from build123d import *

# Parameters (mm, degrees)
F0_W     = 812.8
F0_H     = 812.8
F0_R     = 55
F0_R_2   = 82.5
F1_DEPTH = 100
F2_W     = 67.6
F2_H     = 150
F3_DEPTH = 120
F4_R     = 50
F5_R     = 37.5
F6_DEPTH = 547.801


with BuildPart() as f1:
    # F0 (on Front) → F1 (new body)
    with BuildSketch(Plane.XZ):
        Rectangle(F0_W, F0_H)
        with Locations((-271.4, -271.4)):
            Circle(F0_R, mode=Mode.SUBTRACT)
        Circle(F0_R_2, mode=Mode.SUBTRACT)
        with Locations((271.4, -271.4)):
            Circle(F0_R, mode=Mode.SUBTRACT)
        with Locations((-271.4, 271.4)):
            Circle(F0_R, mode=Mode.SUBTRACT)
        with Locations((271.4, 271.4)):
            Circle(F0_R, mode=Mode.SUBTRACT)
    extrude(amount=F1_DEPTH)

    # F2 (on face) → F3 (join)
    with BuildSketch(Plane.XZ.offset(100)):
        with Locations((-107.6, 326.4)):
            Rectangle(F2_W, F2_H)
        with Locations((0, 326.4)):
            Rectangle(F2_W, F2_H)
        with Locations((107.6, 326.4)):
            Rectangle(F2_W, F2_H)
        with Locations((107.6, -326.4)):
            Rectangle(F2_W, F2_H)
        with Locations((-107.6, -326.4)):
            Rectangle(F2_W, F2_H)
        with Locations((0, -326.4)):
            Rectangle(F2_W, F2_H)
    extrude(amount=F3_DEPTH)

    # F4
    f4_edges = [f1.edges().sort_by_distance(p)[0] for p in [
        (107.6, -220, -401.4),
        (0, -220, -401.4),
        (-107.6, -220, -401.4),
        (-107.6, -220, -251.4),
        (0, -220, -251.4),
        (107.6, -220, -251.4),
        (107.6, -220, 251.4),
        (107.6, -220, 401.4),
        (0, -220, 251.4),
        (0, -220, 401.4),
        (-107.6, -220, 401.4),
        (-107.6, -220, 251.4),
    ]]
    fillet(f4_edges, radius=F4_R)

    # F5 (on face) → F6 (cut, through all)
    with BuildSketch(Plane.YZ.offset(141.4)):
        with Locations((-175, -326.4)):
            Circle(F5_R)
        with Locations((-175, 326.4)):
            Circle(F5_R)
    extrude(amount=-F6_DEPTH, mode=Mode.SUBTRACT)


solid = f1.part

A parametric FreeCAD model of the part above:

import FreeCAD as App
import Part
import Sketcher

V = App.Vector


def edges_at(feature, points):
    """Names of the edges that pass closest to the given points."""
    edges = feature.Shape.Edges
    near = lambda p: min(range(len(edges)), key=lambda i: edges[i].distToShape(Part.Vertex(*p))[0])
    return sorted({f"Edge{near(p) + 1}" for p in points})

doc = App.newDocument("Part")
body = doc.addObject("PartDesign::Body", "Body")

sketch1 = body.newObject("Sketcher::SketchObject", "Sketch")
sketch1.AttachmentSupport = (doc.getObject("XZ_Plane"), [""])
sketch1.MapMode = "FlatFace"
sketch1.addGeometry(Part.LineSegment(V(-406, 406, 0), V(-406, -406, 0)), False)
sketch1.addGeometry(Part.LineSegment(V(-406, -406, 0), V(406, -406, 0)), False)
sketch1.addGeometry(Part.LineSegment(V(406, -406, 0), V(406, 406, 0)), False)
sketch1.addGeometry(Part.LineSegment(V(406, 406, 0), V(-406, 406, 0)), False)
sketch1.addGeometry(Part.Circle(V(-271, -271, 0), V(0, 0, 1), 55), False)
sketch1.addGeometry(Part.Circle(V(271, -271, 0), V(0, 0, 1), 55), False)
sketch1.addGeometry(Part.Circle(V(-271, 271, 0), V(0, 0, 1), 55), False)
sketch1.addGeometry(Part.Circle(V(0, 0, 0), V(0, 0, 1), 82), False)
sketch1.addGeometry(Part.Circle(V(271, 271, 0), V(0, 0, 1), 55), False)
sketch1.addConstraint(Sketcher.Constraint("Coincident", 0, 2, 1, 1))
sketch1.addConstraint(Sketcher.Constraint("Coincident", 1, 2, 2, 1))
sketch1.addConstraint(Sketcher.Constraint("Coincident", 2, 2, 3, 1))
sketch1.addConstraint(Sketcher.Constraint("Coincident", 3, 2, 0, 1))
sketch1.addConstraint(Sketcher.Constraint("Vertical", 0))
sketch1.addConstraint(Sketcher.Constraint("Horizontal", 1))
sketch1.addConstraint(Sketcher.Constraint("Vertical", 2))
sketch1.addConstraint(Sketcher.Constraint("Horizontal", 3))
sketch1.addConstraint(Sketcher.Constraint("Coincident", 7, 3, -1, 1))
sketch1.addConstraint(Sketcher.Constraint("Equal", 4, 5))
sketch1.addConstraint(Sketcher.Constraint("Equal", 5, 6))
sketch1.addConstraint(Sketcher.Constraint("Equal", 6, 8))
sketch1.addConstraint(Sketcher.Constraint("Symmetric", 5, 3, 6, 3, -1, 1))
sketch1.addConstraint(Sketcher.Constraint("Symmetric", 4, 3, 8, 3, -1, 1))
sketch1.addConstraint(Sketcher.Constraint("Symmetric", 0, 2, 2, 2, -1, 1))
sketch1.addConstraint(Sketcher.Constraint("Symmetric", 4, 3, 5, 3, -2))
sketch1.addConstraint(Sketcher.Constraint("Equal", 3, 0))
sketch1.addConstraint(Sketcher.Constraint("Diameter", 4, 110.0))
sketch1.addConstraint(Sketcher.Constraint("Diameter", 7, 165.0))
sketch1.addConstraint(Sketcher.Constraint("DistanceX", 1, 1, 1, 2, 812.8))
sketch1.addConstraint(Sketcher.Constraint("DistanceX", 0, 2, 4, 3, 135.0))
sketch1.addConstraint(Sketcher.Constraint("DistanceY", 0, 2, 4, 3, 135.0))
pad1 = body.newObject("PartDesign::Pad", "Pad")
pad1.Profile = sketch1
pad1.Length = 100

sketch2 = body.newObject("Sketcher::SketchObject", "Sketch001")
sketch2.AttachmentSupport = (doc.getObject("XZ_Plane"), [""])
sketch2.MapMode = "FlatFace"
sketch2.AttachmentOffset = App.Placement(V(0, 0, 100), App.Rotation())
sketch2.addGeometry(Part.LineSegment(V(-141, 401, 0), V(-141, 251, 0)), False)
sketch2.addGeometry(Part.LineSegment(V(-141, 251, 0), V(-74, 251, 0)), False)
sketch2.addGeometry(Part.LineSegment(V(-74, 251, 0), V(-74, 401, 0)), False)
sketch2.addGeometry(Part.LineSegment(V(-74, 401, 0), V(-141, 401, 0)), False)
sketch2.addGeometry(Part.LineSegment(V(-34, 401, 0), V(-34, 251, 0)), False)
sketch2.addGeometry(Part.LineSegment(V(-34, 251, 0), V(34, 251, 0)), False)
sketch2.addGeometry(Part.LineSegment(V(34, 251, 0), V(34, 401, 0)), False)
sketch2.addGeometry(Part.LineSegment(V(34, 401, 0), V(-34, 401, 0)), False)
sketch2.addGeometry(Part.LineSegment(V(74, 401, 0), V(74, 251, 0)), False)
sketch2.addGeometry(Part.LineSegment(V(74, 251, 0), V(141, 251, 0)), False)
sketch2.addGeometry(Part.LineSegment(V(141, 251, 0), V(141, 401, 0)), False)
sketch2.addGeometry(Part.LineSegment(V(141, 401, 0), V(74, 401, 0)), False)
sketch2.addGeometry(Part.LineSegment(V(74, -251, 0), V(74, -401, 0)), False)
sketch2.addGeometry(Part.LineSegment(V(74, -401, 0), V(141, -401, 0)), False)
sketch2.addGeometry(Part.LineSegment(V(141, -401, 0), V(141, -251, 0)), False)
sketch2.addGeometry(Part.LineSegment(V(141, -251, 0), V(74, -251, 0)), False)
sketch2.addGeometry(Part.LineSegment(V(-141, -251, 0), V(-141, -401, 0)), False)
sketch2.addGeometry(Part.LineSegment(V(-141, -401, 0), V(-74, -401, 0)), False)
sketch2.addGeometry(Part.LineSegment(V(-74, -401, 0), V(-74, -251, 0)), False)
sketch2.addGeometry(Part.LineSegment(V(-74, -251, 0), V(-141, -251, 0)), False)
sketch2.addGeometry(Part.LineSegment(V(-34, -251, 0), V(-34, -401, 0)), False)
sketch2.addGeometry(Part.LineSegment(V(-34, -401, 0), V(34, -401, 0)), False)
sketch2.addGeometry(Part.LineSegment(V(34, -401, 0), V(34, -251, 0)), False)
sketch2.addGeometry(Part.LineSegment(V(34, -251, 0), V(-34, -251, 0)), False)
sketch2.addConstraint(Sketcher.Constraint("Coincident", 0, 2, 1, 1))
sketch2.addConstraint(Sketcher.Constraint("Coincident", 1, 2, 2, 1))
sketch2.addConstraint(Sketcher.Constraint("Coincident", 2, 2, 3, 1))
sketch2.addConstraint(Sketcher.Constraint("Coincident", 3, 2, 0, 1))
sketch2.addConstraint(Sketcher.Constraint("Coincident", 4, 2, 5, 1))
sketch2.addConstraint(Sketcher.Constraint("Coincident", 5, 2, 6, 1))
sketch2.addConstraint(Sketcher.Constraint("Coincident", 6, 2, 7, 1))
sketch2.addConstraint(Sketcher.Constraint("Coincident", 7, 2, 4, 1))
sketch2.addConstraint(Sketcher.Constraint("Coincident", 8, 2, 9, 1))
sketch2.addConstraint(Sketcher.Constraint("Coincident", 9, 2, 10, 1))
sketch2.addConstraint(Sketcher.Constraint("Coincident", 10, 2, 11, 1))
sketch2.addConstraint(Sketcher.Constraint("Coincident", 11, 2, 8, 1))
sketch2.addConstraint(Sketcher.Constraint("Coincident", 12, 2, 13, 1))
sketch2.addConstraint(Sketcher.Constraint("Coincident", 13, 2, 14, 1))
sketch2.addConstraint(Sketcher.Constraint("Coincident", 14, 2, 15, 1))
sketch2.addConstraint(Sketcher.Constraint("Coincident", 15, 2, 12, 1))
sketch2.addConstraint(Sketcher.Constraint("Coincident", 16, 2, 17, 1))
sketch2.addConstraint(Sketcher.Constraint("Coincident", 17, 2, 18, 1))
sketch2.addConstraint(Sketcher.Constraint("Coincident", 18, 2, 19, 1))
sketch2.addConstraint(Sketcher.Constraint("Coincident", 19, 2, 16, 1))
sketch2.addConstraint(Sketcher.Constraint("Coincident", 20, 2, 21, 1))
sketch2.addConstraint(Sketcher.Constraint("Coincident", 21, 2, 22, 1))
sketch2.addConstraint(Sketcher.Constraint("Coincident", 22, 2, 23, 1))
sketch2.addConstraint(Sketcher.Constraint("Coincident", 23, 2, 20, 1))
sketch2.addConstraint(Sketcher.Constraint("Vertical", 0))
sketch2.addConstraint(Sketcher.Constraint("Horizontal", 1))
sketch2.addConstraint(Sketcher.Constraint("Vertical", 2))
sketch2.addConstraint(Sketcher.Constraint("Horizontal", 3))
sketch2.addConstraint(Sketcher.Constraint("Vertical", 4))
sketch2.addConstraint(Sketcher.Constraint("Horizontal", 5))
sketch2.addConstraint(Sketcher.Constraint("Vertical", 6))
sketch2.addConstraint(Sketcher.Constraint("Horizontal", 7))
sketch2.addConstraint(Sketcher.Constraint("Vertical", 8))
sketch2.addConstraint(Sketcher.Constraint("Horizontal", 9))
sketch2.addConstraint(Sketcher.Constraint("Vertical", 10))
sketch2.addConstraint(Sketcher.Constraint("Horizontal", 11))
sketch2.addConstraint(Sketcher.Constraint("Vertical", 12))
sketch2.addConstraint(Sketcher.Constraint("Horizontal", 13))
sketch2.addConstraint(Sketcher.Constraint("Vertical", 14))
sketch2.addConstraint(Sketcher.Constraint("Horizontal", 15))
sketch2.addConstraint(Sketcher.Constraint("Vertical", 16))
sketch2.addConstraint(Sketcher.Constraint("Horizontal", 17))
sketch2.addConstraint(Sketcher.Constraint("Vertical", 18))
sketch2.addConstraint(Sketcher.Constraint("Horizontal", 19))
sketch2.addConstraint(Sketcher.Constraint("Vertical", 20))
sketch2.addConstraint(Sketcher.Constraint("Horizontal", 21))
sketch2.addConstraint(Sketcher.Constraint("Vertical", 22))
sketch2.addConstraint(Sketcher.Constraint("Horizontal", 23))
sketch2.addConstraint(Sketcher.Constraint("Symmetric", 2, 2, 12, 2, -1, 1))
sketch2.addConstraint(Sketcher.Constraint("Symmetric", 0, 2, 14, 2, -1, 1))
sketch2.addConstraint(Sketcher.Constraint("Symmetric", 10, 2, 16, 2, -1, 1))
sketch2.addConstraint(Sketcher.Constraint("Symmetric", 8, 2, 18, 2, -1, 1))
sketch2.addConstraint(Sketcher.Constraint("Symmetric", 6, 2, 20, 2, -1, 1))
sketch2.addConstraint(Sketcher.Constraint("Symmetric", 4, 2, 22, 2, -1, 1))
sketch2.addConstraint(Sketcher.Constraint("Symmetric", 1, 2, 8, 2, -2))
sketch2.addConstraint(Sketcher.Constraint("Symmetric", 3, 2, 10, 2, -2))
sketch2.addConstraint(Sketcher.Constraint("Horizontal", 1, 2, 4, 2))
sketch2.addConstraint(Sketcher.Constraint("Horizontal", 3, 2, 6, 2))
sketch2.addConstraint(Sketcher.Constraint("Vertical", 7, 2, 20, 2))
sketch2.addConstraint(Sketcher.Constraint("Equal", 3, 5))
sketch2.addConstraint(Sketcher.Constraint("DistanceY", 0, 2, 0, 1, 150.0))
sketch2.addConstraint(Sketcher.Constraint("DistanceX", 1, 1, 1, 2, 67.6))
sketch2.addConstraint(Sketcher.Constraint("DistanceX", 1, 2, 4, 2, 40.0))
sketch2.addConstraint(Sketcher.Constraint("DistanceY", -1, 1, 0, 2, 251.4))
pad2 = body.newObject("PartDesign::Pad", "Pad001")
pad2.Profile = sketch2
pad2.Length = 120
doc.recompute()

fillet = body.newObject("PartDesign::Fillet", "Fillet")
fillet.Base = (pad2, edges_at(pad2, [
    (107.6, -220, -401.4),
    (0, -220, -401.4),
    (-107.6, -220, -401.4),
    (-107.6, -220, -251.4),
    (0, -220, -251.4),
    (107.6, -220, -251.4),
    (107.6, -220, 251.4),
    (107.6, -220, 401.4),
    (0, -220, 251.4),
    (0, -220, 401.4),
    (-107.6, -220, 401.4),
    (-107.6, -220, 251.4),
]))
fillet.Radius = 50

sketch3 = body.newObject("Sketcher::SketchObject", "Sketch002")
sketch3.AttachmentSupport = (doc.getObject("YZ_Plane"), [""])
sketch3.MapMode = "FlatFace"
sketch3.AttachmentOffset = App.Placement(V(0, 0, 141.4), App.Rotation())
sketch3.addGeometry(Part.Circle(V(-175, -326, 0), V(0, 0, 1), 38), False)
sketch3.addGeometry(Part.Circle(V(-175, 326, 0), V(0, 0, 1), 38), False)
sketch3.addConstraint(Sketcher.Constraint("Equal", 0, 1))
sketch3.addConstraint(Sketcher.Constraint("Symmetric", 0, 3, 1, 3, -1))
sketch3.addConstraint(Sketcher.Constraint("Diameter", 0, 75.0))
sketch3.addConstraint(Sketcher.Constraint("DistanceX", 0, 3, -1, 1, 175.0))
sketch3.addConstraint(Sketcher.Constraint("DistanceY", 0, 3, -1, 1, 326.4))
pocket1 = body.newObject("PartDesign::Pocket", "Pocket")
pocket1.Profile = sketch3
pocket1.Type = "ThroughAll"

doc.recompute()
